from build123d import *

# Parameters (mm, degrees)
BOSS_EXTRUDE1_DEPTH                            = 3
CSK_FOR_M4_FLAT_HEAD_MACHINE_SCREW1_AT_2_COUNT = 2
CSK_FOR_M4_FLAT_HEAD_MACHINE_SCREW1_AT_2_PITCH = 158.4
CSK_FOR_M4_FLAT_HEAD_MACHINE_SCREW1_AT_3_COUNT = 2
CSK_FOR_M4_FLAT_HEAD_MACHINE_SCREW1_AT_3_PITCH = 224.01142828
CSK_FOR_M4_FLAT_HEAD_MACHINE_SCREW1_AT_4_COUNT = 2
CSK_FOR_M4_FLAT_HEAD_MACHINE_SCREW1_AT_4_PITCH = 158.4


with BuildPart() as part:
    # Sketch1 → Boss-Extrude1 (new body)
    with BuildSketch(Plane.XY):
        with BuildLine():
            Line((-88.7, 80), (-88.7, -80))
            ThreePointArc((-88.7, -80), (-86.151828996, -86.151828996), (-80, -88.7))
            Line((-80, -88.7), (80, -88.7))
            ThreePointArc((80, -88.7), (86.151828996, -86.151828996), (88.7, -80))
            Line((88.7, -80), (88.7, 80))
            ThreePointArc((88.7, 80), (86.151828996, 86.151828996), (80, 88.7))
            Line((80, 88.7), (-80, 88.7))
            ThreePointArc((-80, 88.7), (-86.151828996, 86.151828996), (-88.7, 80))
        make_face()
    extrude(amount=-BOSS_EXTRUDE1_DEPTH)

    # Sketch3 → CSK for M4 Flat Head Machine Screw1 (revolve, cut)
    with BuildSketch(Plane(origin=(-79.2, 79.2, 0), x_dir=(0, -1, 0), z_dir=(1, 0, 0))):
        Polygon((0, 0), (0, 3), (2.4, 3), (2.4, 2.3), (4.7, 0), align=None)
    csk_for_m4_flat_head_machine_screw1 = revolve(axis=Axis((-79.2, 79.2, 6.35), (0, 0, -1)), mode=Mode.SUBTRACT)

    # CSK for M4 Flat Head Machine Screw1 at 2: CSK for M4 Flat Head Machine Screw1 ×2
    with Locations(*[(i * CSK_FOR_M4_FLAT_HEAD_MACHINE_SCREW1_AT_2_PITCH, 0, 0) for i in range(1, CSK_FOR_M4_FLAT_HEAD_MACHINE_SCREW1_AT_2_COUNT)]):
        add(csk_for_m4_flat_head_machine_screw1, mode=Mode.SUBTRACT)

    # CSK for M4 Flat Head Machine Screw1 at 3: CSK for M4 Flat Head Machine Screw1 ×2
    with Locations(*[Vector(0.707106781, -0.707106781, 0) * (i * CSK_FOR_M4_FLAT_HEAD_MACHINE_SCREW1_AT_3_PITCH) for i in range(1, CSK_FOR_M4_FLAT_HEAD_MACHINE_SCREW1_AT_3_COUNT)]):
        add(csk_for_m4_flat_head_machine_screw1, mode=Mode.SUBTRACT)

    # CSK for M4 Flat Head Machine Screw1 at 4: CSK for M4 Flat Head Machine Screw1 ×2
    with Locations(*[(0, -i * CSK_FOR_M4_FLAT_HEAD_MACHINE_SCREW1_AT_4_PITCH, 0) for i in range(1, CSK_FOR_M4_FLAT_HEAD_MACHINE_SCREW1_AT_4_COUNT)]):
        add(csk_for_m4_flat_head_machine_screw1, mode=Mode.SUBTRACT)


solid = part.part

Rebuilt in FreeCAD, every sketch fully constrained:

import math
import FreeCAD as App
import Part
import Sketcher
Q = App.Units.Quantity


def add_polygon(sketch, points):
    """Adds a closed chain of lines whose ends are joined by coincident constraints."""
    first, n = sketch.GeometryCount, len(points)
    for a, b in zip(points, points[1:] + points[:1]):
        sketch.addGeometry(Part.LineSegment(App.Vector(*a, 0), App.Vector(*b, 0)), False)
    for i in range(n):
        sketch.addConstraint(Sketcher.Constraint("Coincident", first + i, 2, first + (i + 1) % n, 1))

doc = App.newDocument("Part")
params = doc.addObject("Spreadsheet::Sheet", "Params")
for row, (alias, value) in enumerate([
    ("sketch1_radius", "8.7 mm"),
    ("sketch1_width", "160 mm"),
    ("pad1_length", "3 mm"),
    ("sketch2_height", "3 mm"),
    ("sketch2_width", "4.7 mm"),
    ("sketch2_width2", "2.4 mm"),
    ("groove_angle", "360 deg"),
    ("linearpattern_pitch", "158.4 mm"),
    ("linearpattern2_pitch", "224.011428 mm"),
    ("linearpattern3_pitch", "158.4 mm"),
], start=1):
    params.set(f"A{row}", alias)
    params.set(f"B{row}", "=" + value)
    params.setAlias(f"B{row}", alias)

body = doc.addObject("PartDesign::Body", "Body")

# Sketch on XY plane
sketch1 = doc.addObject("Sketcher::SketchObject", "Sketch")
body.addObject(sketch1)
sketch1.AttachmentSupport = (doc.XY_Plane, [""])
sketch1.MapMode = "FlatFace"
sketch1.addGeometry([
    Part.LineSegment(App.Vector(-89, 80, 0), App.Vector(-89, -80, 0)),  # 0
    Part.ArcOfCircle(Part.Circle(App.Vector(-80, -80, 0), App.Vector(0, 0, 1), 9), math.radians(-180), math.radians(-90)),  # 1
    Part.LineSegment(App.Vector(-80, -89, 0), App.Vector(80, -89, 0)),  # 2
    Part.ArcOfCircle(Part.Circle(App.Vector(80, -80, 0), App.Vector(0, 0, 1), 9), math.radians(-90), math.radians(0)),  # 3
    Part.LineSegment(App.Vector(89, -80, 0), App.Vector(89, 80, 0)),  # 4
    Part.ArcOfCircle(Part.Circle(App.Vector(80, 80, 0), App.Vector(0, 0, 1), 9), math.radians(0), math.radians(90)),  # 5
    Part.LineSegment(App.Vector(80, 89, 0), App.Vector(-80, 89, 0)),  # 6
    Part.ArcOfCircle(Part.Circle(App.Vector(-80, 80, 0), App.Vector(0, 0, 1), 9), math.radians(90), math.radians(180)),  # 7
], False)
sketch1.addConstraint([
    Sketcher.Constraint("Tangent", 0, 2, 1, 1),
    Sketcher.Constraint("Tangent", 1, 2, 2, 1),
    Sketcher.Constraint("Tangent", 2, 2, 3, 1),
    Sketcher.Constraint("Tangent", 3, 2, 4, 1),
    Sketcher.Constraint("Tangent", 4, 2, 5, 1),
    Sketcher.Constraint("Tangent", 5, 2, 6, 1),
    Sketcher.Constraint("Tangent", 6, 2, 7, 1),
    Sketcher.Constraint("Tangent", 7, 2, 0, 1),
    Sketcher.Constraint("Vertical", 0),
    Sketcher.Constraint("Horizontal", 2),
    Sketcher.Constraint("Vertical", 4),
    Sketcher.Constraint("Horizontal", 6),
    Sketcher.Constraint("Equal", 1, 3),
    Sketcher.Constraint("Equal", 3, 5),
    Sketcher.Constraint("Equal", 5, 7),
    Sketcher.Constraint("Symmetric", 1, 3, 5, 3, -1, 1),
    Sketcher.Constraint("Equal", 6, 0),
    Sketcher.Constraint("Radius", 1, 8.7),
    Sketcher.Constraint("DistanceX", 2, 1, 2, 2, 160.0),
])
sketch1.setExpression("Constraints[17]", "Params.sketch1_radius")
sketch1.setExpression("Constraints[18]", "Params.sketch1_width")
pad1 = doc.addObject("PartDesign::Pad", "Pad")
body.addObject(pad1)
pad1.Profile = sketch1
pad1.setExpression("Length", "Params.pad1_length")
pad1.Reversed = True

# Sketch on YZ plane
sketch2 = doc.addObject("Sketcher::SketchObject", "Sketch001")
body.addObject(sketch2)
sketch2.AttachmentSupport = (doc.YZ_Plane, [""])
sketch2.MapMode = "FlatFace"
sketch2.AttachmentOffset = App.Placement(App.Vector(0, 0, -79.2), App.Rotation())
add_polygon(sketch2, [(79.2, -3), (79.2, 0), (74.5, 0), (76.8, -2.3), (76.8, -3)])  # lines 0-4
sketch2.addGeometry(Part.LineSegment(App.Vector(79.2, 0, 0), App.Vector(79.2, -3, 0)), True)  # axis
sketch2.addConstraint([
    Sketcher.Constraint("Vertical", 0),
    Sketcher.Constraint("Horizontal", 1),
    Sketcher.Constraint("Vertical", 3),
    Sketcher.Constraint("Horizontal", 4),
    Sketcher.Constraint("Vertical", 5),
    Sketcher.Constraint("Coincident", 5, 1, 0, 2),
    Sketcher.Constraint("PointOnObject", 0, 2, -1),
    Sketcher.Constraint("Horizontal", 3, 2, 5, 2),
    Sketcher.Constraint("DistanceY", 0, 1, 0, 2, 3.0),
    Sketcher.Constraint("Angle", 2, Q("-45 deg")),
    Sketcher.Constraint("DistanceX", 1, 2, 1, 1, 4.7),
    Sketcher.Constraint("DistanceX", 4, 1, 4, 2, 2.4),
    Sketcher.Constraint("DistanceX", -1, 1, 0, 2, 79.2),
])
sketch2.setExpression("Constraints[13]", "Params.sketch2_height")
sketch2.setExpression("Constraints[15]", "Params.sketch2_width")
sketch2.setExpression("Constraints[16]", "Params.sketch2_width2")
groove = doc.addObject("PartDesign::Groove", "Groove")
body.addObject(groove)
groove.Profile = sketch2
groove.ReferenceAxis = (sketch2, ["Axis0"])
groove.setExpression("Angle", "Params.groove_angle")
doc.recompute()

linearpattern = doc.addObject("PartDesign::LinearPattern", "LinearPattern")
body.addObject(linearpattern)
linearpattern.Originals = [groove]
linearpattern.Direction = (doc.X_Axis, [""])
linearpattern.Mode = "offset"
linearpattern.setExpression("Offset", "Params.linearpattern_pitch")
linearpattern.Occurrences = 2
body.Tip = linearpattern
doc.recompute()

datumline = doc.addObject("PartDesign::Line", "DatumLine")
body.addObject(datumline)
datumline.Placement = App.Placement(App.Vector(0, 0, 0), App.Rotation(App.Vector(0, 0, 1), App.Vector(0.707106781, -0.707106781, 0)))
linearpattern2 = doc.addObject("PartDesign::LinearPattern", "LinearPattern001")
body.addObject(linearpattern2)
linearpattern2.Originals = [groove]
linearpattern2.Direction = (datumline, [""])
linearpattern2.Mode = "offset"
linearpattern2.setExpression("Offset", "Params.linearpattern2_pitch")
linearpattern2.Occurrences = 2
body.Tip = linearpattern2
doc.recompute()

linearpattern3 = doc.addObject("PartDesign::LinearPattern", "LinearPattern002")
body.addObject(linearpattern3)
linearpattern3.Originals = [groove]
linearpattern3.Direction = (doc.Y_Axis, [""])
linearpattern3.Mode = "offset"
linearpattern3.setExpression("Offset", "Params.linearpattern3_pitch")
linearpattern3.Occurrences = 2
linearpattern3.Reversed = True
body.Tip = linearpattern3

doc.recompute()
